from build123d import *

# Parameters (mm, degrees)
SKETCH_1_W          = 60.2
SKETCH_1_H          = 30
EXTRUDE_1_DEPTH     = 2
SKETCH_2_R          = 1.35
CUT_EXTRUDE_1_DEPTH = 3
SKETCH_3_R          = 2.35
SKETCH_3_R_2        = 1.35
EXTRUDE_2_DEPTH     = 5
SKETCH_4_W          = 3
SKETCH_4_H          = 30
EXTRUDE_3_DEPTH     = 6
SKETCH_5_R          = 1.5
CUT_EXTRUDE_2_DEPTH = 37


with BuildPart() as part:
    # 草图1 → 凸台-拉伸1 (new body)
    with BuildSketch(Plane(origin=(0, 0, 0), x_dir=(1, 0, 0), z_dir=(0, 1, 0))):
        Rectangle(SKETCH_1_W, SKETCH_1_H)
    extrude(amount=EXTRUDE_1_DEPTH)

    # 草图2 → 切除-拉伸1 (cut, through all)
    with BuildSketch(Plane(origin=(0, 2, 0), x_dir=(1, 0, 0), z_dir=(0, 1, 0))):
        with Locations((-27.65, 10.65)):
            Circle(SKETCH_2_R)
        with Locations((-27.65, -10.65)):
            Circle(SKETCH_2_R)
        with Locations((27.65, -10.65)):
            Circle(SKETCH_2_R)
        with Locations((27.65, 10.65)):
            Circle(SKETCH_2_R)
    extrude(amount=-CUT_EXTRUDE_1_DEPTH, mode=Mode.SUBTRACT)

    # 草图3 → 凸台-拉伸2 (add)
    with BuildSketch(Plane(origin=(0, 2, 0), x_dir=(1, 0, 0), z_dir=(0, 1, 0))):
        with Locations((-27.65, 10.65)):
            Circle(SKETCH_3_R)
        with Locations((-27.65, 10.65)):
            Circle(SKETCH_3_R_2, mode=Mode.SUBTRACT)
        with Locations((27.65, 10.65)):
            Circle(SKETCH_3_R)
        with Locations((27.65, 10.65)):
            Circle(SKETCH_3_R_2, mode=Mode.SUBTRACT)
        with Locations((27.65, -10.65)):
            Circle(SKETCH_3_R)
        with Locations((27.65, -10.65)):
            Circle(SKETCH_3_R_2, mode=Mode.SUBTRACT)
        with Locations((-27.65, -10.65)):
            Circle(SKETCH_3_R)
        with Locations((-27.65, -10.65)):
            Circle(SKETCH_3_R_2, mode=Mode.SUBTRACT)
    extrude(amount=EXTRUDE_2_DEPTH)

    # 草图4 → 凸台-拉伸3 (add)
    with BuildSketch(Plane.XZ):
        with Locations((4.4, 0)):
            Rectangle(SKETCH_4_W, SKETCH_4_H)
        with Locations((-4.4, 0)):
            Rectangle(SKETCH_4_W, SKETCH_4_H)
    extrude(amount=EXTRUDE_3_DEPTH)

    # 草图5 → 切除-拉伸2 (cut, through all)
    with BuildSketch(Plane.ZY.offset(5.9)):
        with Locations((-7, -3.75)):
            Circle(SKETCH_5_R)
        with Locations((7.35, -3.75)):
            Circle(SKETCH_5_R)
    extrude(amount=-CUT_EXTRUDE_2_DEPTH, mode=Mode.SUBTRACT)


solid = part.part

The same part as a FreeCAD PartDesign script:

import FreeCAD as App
import Part
import Sketcher
Q = App.Units.Quantity

doc = App.newDocument("Part")
body = doc.addObject("PartDesign::Body", "Body")

# Sketch on XZ plane
sketch1 = doc.addObject("Sketcher::SketchObject", "Sketch")
body.addObject(sketch1)
sketch1.AttachmentSupport = (doc.XZ_Plane, [""])
sketch1.MapMode = "FlatFace"
sketch1.addGeometry([
    Part.LineSegment(App.Vector(-30, -15, 0), App.Vector(-30, 15, 0)),
    Part.LineSegment(App.Vector(-30, 15, 0), App.Vector(30, 15, 0)),
    Part.LineSegment(App.Vector(30, 15, 0), App.Vector(30, -15, 0)),
    Part.LineSegment(App.Vector(30, -15, 0), App.Vector(-30, -15, 0)),
], False)
sketch1.addConstraint([
    Sketcher.Constraint("Coincident", 0, 2, 1, 1),
    Sketcher.Constraint("Coincident", 1, 2, 2, 1),
    Sketcher.Constraint("Coincident", 2, 2, 3, 1),
    Sketcher.Constraint("Coincident", 3, 2, 0, 1),
    Sketcher.Constraint("Vertical", 0),
    Sketcher.Constraint("Horizontal", 1),
    Sketcher.Constraint("Vertical", 2),
    Sketcher.Constraint("Horizontal", 3),
    Sketcher.Constraint("Symmetric", 0, 2, 2, 2, -1, 1),
    Sketcher.Constraint("DistanceY", 0, 1, 0, 2, Q("30 mm")),
    Sketcher.Constraint("DistanceX", 1, 1, 1, 2, Q("60.2 mm")),
])
pad1 = doc.addObject("PartDesign::Pad", "Pad")
body.addObject(pad1)
pad1.Profile = sketch1
pad1.Length = 2
pad1.Reversed = True

# Sketch on XZ plane
sketch2 = doc.addObject("Sketcher::SketchObject", "Sketch001")
body.addObject(sketch2)
sketch2.AttachmentSupport = (doc.XZ_Plane, [""])
sketch2.MapMode = "FlatFace"
sketch2.AttachmentOffset = App.Placement(App.Vector(0, 0, -2), App.Rotation())
sketch2.addGeometry([
    Part.Circle(App.Vector(-27.6, -10.7, 0), App.Vector(0, 0, 1), 1.4),
    Part.Circle(App.Vector(-27.6, 10.7, 0), App.Vector(0, 0, 1), 1.4),
    Part.Circle(App.Vector(27.6, 10.7, 0), App.Vector(0, 0, 1), 1.4),
    Part.Circle(App.Vector(27.6, -10.7, 0), App.Vector(0, 0, 1), 1.4),
], False)
sketch2.addConstraint([
    Sketcher.Constraint("Equal", 0, 1),
    Sketcher.Constraint("Equal", 1, 2),
    Sketcher.Constraint("Equal", 2, 3),
    Sketcher.Constraint("Symmetric", 0, 3, 2, 3, -1, 1),
    Sketcher.Constraint("Symmetric", 1, 3, 3, 3, -1, 1),
    Sketcher.Constraint("Symmetric", 1, 3, 2, 3, -2),
    Sketcher.Constraint("Diameter", 0, Q("2.7 mm")),
    Sketcher.Constraint("DistanceY", 0, 3, 1, 3, Q("21.3 mm")),
    Sketcher.Constraint("DistanceX", 1, 3, 2, 3, Q("55.3 mm")),
])
pocket1 = doc.addObject("PartDesign::Pocket", "Pocket")
body.addObject(pocket1)
pocket1.Profile = sketch2
pocket1.Type = "ThroughAll"
pocket1.Reversed = True

# Sketch on XZ plane
sketch3 = doc.addObject("Sketcher::SketchObject", "Sketch002")
body.addObject(sketch3)
sketch3.AttachmentSupport = (doc.XZ_Plane, [""])
sketch3.MapMode = "FlatFace"
sketch3.AttachmentOffset = App.Placement(App.Vector(0, 0, -2), App.Rotation())
sketch3.addGeometry([
    Part.Circle(App.Vector(-27.6, -10.7, 0), App.Vector(0, 0, 1), 2.4),  # 0
    Part.Circle(App.Vector(-27.6, -10.7, 0), App.Vector(0, 0, 1), 1.4),  # 1
    Part.Circle(App.Vector(27.6, -10.7, 0), App.Vector(0, 0, 1), 2.4),  # 2
    Part.Circle(App.Vector(27.6, -10.7, 0), App.Vector(0, 0, 1), 1.4),  # 3
    Part.Circle(App.Vector(27.6, 10.7, 0), App.Vector(0, 0, 1), 2.4),  # 4
    Part.Circle(App.Vector(27.6, 10.7, 0), App.Vector(0, 0, 1), 1.4),  # 5
    Part.Circle(App.Vector(-27.6, 10.7, 0), App.Vector(0, 0, 1), 2.4),  # 6
    Part.Circle(App.Vector(-27.6, 10.7, 0), App.Vector(0, 0, 1), 1.4),  # 7
], False)
sketch3.addConstraint([
    Sketcher.Constraint("Coincident", 1, 3, 0, 3),
    Sketcher.Constraint("Coincident", 3, 3, 2, 3),
    Sketcher.Constraint("Coincident", 5, 3, 4, 3),
    Sketcher.Constraint("Coincident", 7, 3, 6, 3),
    Sketcher.Constraint("Equal", 0, 2),
    Sketcher.Constraint("Equal", 1, 3),
    Sketcher.Constraint("Equal", 2, 4),
    Sketcher.Constraint("Equal", 3, 5),
    Sketcher.Constraint("Equal", 4, 6),
    Sketcher.Constraint("Equal", 5, 7),
    Sketcher.Constraint("Symmetric", 0, 3, 4, 3, -1, 1),
    Sketcher.Constraint("Symmetric", 2, 3, 6, 3, -1, 1),
    Sketcher.Constraint("Symmetric", 0, 3, 2, 3, -2),
    Sketcher.Constraint("Diameter", 0, Q("4.7 mm")),
    Sketcher.Constraint("Diameter", 1, Q("2.7 mm")),
    Sketcher.Constraint("DistanceX", 0, 3, 2, 3, Q("55.3 mm")),
    Sketcher.Constraint("DistanceY", 2, 3, 4, 3, Q("21.3 mm")),
])
pad2 = doc.addObject("PartDesign::Pad", "Pad001")
body.addObject(pad2)
pad2.Profile = sketch3
pad2.Length = 5
pad2.Reversed = True

# Sketch on XZ plane
sketch4 = doc.addObject("Sketcher::SketchObject", "Sketch003")
body.addObject(sketch4)
sketch4.AttachmentSupport = (doc.XZ_Plane, [""])
sketch4.MapMode = "FlatFace"
sketch4.addGeometry([
    Part.LineSegment(App.Vector(2.9, 15, 0), App.Vector(2.9, -15, 0)),  # 0
    Part.LineSegment(App.Vector(2.9, -15, 0), App.Vector(5.9, -15, 0)),  # 1
    Part.LineSegment(App.Vector(5.9, -15, 0), App.Vector(5.9, 15, 0)),  # 2
    Part.LineSegment(App.Vector(5.9, 15, 0), App.Vector(2.9, 15, 0)),  # 3
    Part.LineSegment(App.Vector(-5.9, 15, 0), App.Vector(-5.9, -15, 0)),  # 4
    Part.LineSegment(App.Vector(-5.9, -15, 0), App.Vector(-2.9, -15, 0)),  # 5
    Part.LineSegment(App.Vector(-2.9, -15, 0), App.Vector(-2.9, 15, 0)),  # 6
    Part.LineSegment(App.Vector(-2.9, 15, 0), App.Vector(-5.9, 15, 0)),  # 7
], False)
sketch4.addConstraint([
    Sketcher.Constraint("Coincident", 0, 2, 1, 1),
    Sketcher.Constraint("Coincident", 1, 2, 2, 1),
    Sketcher.Constraint("Coincident", 2, 2, 3, 1),
    Sketcher.Constraint("Coincident", 3, 2, 0, 1),
    Sketcher.Constraint("Coincident", 4, 2, 5, 1),
    Sketcher.Constraint("Coincident", 5, 2, 6, 1),
    Sketcher.Constraint("Coincident", 6, 2, 7, 1),
    Sketcher.Constraint("Coincident", 7, 2, 4, 1),
    Sketcher.Constraint("Vertical", 0),
    Sketcher.Constraint("Horizontal", 1),
    Sketcher.Constraint("Vertical", 2),
    Sketcher.Constraint("Horizontal", 3),
    Sketcher.Constraint("Vertical", 4),
    Sketcher.Constraint("Horizontal", 5),
    Sketcher.Constraint("Vertical", 6),
    Sketcher.Constraint("Horizontal", 7),
    Sketcher.Constraint("Symmetric", 2, 2, 4, 2, -1, 1),
    Sketcher.Constraint("Symmetric", 0, 2, 6, 2, -1, 1),
    Sketcher.Constraint("Horizontal", 1, 2, 4, 2),
    Sketcher.Constraint("DistanceX", 1, 1, 1, 2, Q("3 mm")),
    Sketcher.Constraint("DistanceY", 0, 2, 0, 1, Q("30 mm")),
    Sketcher.Constraint("DistanceX", -1, 1, 0, 2, Q("2.9 mm")),
])
pad3 = doc.addObject("PartDesign::Pad", "Pad002")
body.addObject(pad3)
pad3.Profile = sketch4
pad3.Length = 6

# Sketch on YZ plane
sketch5 = doc.addObject("Sketcher::SketchObject", "Sketch004")
body.addObject(sketch5)
sketch5.AttachmentSupport = (doc.YZ_Plane, [""])
sketch5.MapMode = "FlatFace"
sketch5.AttachmentOffset = App.Placement(App.Vector(0, 0, -5.9), App.Rotation())
sketch5.addGeometry([
    Part.Circle(App.Vector(-3.8, -7, 0), App.Vector(0, 0, 1), 1.5),
    Part.Circle(App.Vector(-3.8, 7.3, 0), App.Vector(0, 0, 1), 1.5),
], False)
sketch5.addConstraint([
    Sketcher.Constraint("Equal", 0, 1),
    Sketcher.Constraint("Vertical", 0, 3, 1, 3),
    Sketcher.Constraint("Diameter", 0, Q("3 mm")),
    Sketcher.Constraint("DistanceY", 0, 3, -1, 1, Q("7 mm")),
    Sketcher.Constraint("DistanceX", 0, 3, -1, 1, Q("3.75 mm")),
    Sketcher.Constraint("DistanceY", -1, 1, 1, 3, Q("7.35 mm")),
])
pocket2 = doc.addObject("PartDesign::Pocket", "Pocket001")
body.addObject(pocket2)
pocket2.Profile = sketch5
pocket2.Type = "ThroughAll"
pocket2.Reversed = True

doc.recompute()
